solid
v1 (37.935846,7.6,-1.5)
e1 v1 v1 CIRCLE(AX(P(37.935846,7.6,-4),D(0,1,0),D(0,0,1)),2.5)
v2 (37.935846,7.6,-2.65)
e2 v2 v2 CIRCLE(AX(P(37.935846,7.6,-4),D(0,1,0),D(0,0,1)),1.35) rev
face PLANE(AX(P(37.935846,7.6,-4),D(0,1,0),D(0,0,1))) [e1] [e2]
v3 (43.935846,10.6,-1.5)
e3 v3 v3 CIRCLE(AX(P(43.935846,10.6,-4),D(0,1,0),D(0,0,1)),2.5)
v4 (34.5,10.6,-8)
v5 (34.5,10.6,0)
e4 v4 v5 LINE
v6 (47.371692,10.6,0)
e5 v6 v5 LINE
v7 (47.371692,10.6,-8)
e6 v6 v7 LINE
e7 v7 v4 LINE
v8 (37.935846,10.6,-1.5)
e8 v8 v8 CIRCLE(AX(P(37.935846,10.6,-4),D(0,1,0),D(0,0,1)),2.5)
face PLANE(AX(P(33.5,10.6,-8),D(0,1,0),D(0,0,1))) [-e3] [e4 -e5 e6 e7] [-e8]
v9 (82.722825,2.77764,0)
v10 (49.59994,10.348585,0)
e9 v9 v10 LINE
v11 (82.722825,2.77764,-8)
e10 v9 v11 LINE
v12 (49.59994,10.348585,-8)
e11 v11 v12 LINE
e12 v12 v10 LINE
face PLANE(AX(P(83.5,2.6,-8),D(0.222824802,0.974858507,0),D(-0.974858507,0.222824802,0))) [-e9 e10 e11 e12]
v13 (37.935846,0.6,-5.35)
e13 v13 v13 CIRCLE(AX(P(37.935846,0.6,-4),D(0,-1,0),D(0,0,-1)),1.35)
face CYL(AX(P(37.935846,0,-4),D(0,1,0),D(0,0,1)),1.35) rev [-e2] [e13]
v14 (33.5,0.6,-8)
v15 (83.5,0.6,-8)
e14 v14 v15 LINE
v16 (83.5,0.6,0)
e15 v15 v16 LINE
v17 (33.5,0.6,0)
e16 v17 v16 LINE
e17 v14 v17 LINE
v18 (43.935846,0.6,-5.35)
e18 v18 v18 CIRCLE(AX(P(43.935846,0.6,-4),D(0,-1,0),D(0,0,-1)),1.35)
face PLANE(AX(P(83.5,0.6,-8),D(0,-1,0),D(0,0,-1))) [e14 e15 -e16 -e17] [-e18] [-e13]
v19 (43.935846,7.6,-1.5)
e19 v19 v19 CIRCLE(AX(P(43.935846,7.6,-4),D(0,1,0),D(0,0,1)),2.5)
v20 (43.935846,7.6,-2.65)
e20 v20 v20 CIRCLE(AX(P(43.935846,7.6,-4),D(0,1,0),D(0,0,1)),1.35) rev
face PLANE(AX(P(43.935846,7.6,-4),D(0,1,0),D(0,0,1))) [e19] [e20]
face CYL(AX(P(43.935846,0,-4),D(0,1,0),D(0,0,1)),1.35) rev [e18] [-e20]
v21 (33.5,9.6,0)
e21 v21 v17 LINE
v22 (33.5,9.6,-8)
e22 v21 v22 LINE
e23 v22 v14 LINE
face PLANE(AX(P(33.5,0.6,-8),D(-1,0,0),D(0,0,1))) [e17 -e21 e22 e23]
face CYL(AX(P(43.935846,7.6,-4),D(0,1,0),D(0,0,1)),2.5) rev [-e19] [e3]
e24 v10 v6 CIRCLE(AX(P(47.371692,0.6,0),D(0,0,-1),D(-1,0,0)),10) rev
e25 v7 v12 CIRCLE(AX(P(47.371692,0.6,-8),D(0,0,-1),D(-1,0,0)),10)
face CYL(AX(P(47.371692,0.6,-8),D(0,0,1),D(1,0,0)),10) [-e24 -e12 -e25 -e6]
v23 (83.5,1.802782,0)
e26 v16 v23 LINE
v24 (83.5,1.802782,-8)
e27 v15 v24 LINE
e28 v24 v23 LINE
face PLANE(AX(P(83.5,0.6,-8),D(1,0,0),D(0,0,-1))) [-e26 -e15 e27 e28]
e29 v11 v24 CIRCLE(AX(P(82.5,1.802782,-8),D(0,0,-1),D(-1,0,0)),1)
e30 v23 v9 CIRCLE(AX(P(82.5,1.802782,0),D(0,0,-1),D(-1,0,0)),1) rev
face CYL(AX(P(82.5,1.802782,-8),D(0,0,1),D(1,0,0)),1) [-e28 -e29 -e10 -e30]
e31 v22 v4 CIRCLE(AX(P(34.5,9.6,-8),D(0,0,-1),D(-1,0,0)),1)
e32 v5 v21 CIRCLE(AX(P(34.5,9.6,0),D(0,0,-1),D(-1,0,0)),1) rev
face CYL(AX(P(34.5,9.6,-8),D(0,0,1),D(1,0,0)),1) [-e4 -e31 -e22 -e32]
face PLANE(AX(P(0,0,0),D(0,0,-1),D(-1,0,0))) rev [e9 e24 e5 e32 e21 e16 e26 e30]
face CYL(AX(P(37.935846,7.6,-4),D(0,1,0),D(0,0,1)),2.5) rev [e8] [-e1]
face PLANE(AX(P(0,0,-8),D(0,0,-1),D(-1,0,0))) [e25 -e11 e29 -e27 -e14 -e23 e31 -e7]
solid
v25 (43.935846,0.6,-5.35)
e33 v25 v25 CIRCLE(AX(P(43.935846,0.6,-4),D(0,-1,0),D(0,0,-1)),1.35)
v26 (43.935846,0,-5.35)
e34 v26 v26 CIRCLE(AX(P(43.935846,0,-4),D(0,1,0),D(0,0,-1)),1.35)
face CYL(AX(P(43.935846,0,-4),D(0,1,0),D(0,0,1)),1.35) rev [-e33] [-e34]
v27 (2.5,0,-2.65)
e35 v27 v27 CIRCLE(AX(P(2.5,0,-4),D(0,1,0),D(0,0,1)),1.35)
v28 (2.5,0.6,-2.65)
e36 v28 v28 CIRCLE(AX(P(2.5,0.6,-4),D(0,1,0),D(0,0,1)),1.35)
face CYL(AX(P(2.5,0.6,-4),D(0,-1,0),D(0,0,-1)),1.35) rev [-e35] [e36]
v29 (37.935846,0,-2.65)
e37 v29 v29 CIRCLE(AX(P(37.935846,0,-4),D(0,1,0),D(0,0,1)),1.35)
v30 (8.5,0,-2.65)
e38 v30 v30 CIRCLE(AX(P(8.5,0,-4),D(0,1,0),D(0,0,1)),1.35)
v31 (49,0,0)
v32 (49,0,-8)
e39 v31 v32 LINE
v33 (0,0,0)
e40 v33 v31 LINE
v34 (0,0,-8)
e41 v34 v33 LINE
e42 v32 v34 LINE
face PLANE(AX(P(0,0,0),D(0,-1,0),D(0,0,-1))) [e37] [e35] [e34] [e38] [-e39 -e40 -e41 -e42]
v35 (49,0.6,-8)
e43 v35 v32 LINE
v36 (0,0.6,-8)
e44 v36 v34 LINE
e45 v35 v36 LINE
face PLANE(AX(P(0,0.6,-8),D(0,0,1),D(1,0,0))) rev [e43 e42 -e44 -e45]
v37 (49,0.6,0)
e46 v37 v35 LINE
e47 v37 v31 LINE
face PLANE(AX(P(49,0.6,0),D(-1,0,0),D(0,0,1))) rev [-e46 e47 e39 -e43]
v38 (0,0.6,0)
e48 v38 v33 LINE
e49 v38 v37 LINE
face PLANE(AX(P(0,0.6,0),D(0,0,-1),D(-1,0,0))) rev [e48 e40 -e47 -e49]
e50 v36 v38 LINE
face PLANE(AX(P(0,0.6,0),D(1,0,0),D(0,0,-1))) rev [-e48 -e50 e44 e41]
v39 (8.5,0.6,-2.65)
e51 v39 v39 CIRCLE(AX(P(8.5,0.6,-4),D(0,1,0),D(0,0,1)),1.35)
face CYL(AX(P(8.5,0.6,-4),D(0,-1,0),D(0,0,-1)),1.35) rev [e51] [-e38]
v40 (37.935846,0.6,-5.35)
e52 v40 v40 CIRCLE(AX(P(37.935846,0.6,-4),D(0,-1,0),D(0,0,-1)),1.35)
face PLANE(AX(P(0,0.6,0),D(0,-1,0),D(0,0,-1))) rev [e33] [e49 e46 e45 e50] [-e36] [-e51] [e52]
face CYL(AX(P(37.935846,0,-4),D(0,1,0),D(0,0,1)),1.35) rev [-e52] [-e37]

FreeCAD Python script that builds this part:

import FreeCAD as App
import Part
import Sketcher
from FreeCAD import Vector


def edges_at(feature, points):
    """Names of the edges that pass closest to the given points."""
    edges = feature.Shape.Edges
    near = lambda p: min(range(len(edges)), key=lambda i: edges[i].distToShape(Part.Vertex(*p))[0])
    return sorted({f"Edge{near(p) + 1}" for p in points})

doc = App.newDocument("Part")
params = doc.addObject("Spreadsheet::Sheet", "Params")
for row, (alias, value) in enumerate([
    ("sketch1_diameter", "2.7 mm"),
    ("sketch1_width", "49 mm"),
    ("sketch1_height", "8 mm"),
    ("pad1_length", "0.6 mm"),
    ("sketch2_width", "50 mm"),
    ("sketch2_width2", "15 mm"),
    ("sketch2_height", "10 mm"),
    ("sketch2_height2", "2 mm"),
    ("pad2_length", "8 mm"),
    ("fillet_radius", "1 mm"),
    ("fillet2_radius", "10 mm"),
    ("fillet3_radius", "1 mm"),
    ("sketch3_diameter", "2.7 mm"),
    ("pad3_length", "85.549453 mm"),
    ("sketch4_diameter", "5 mm"),
    ("pocket1_length", "3 mm"),
], start=1):
    params.set(f"A{row}", alias)
    params.set(f"B{row}", "=" + value)
    params.setAlias(f"B{row}", alias)

body = doc.addObject("PartDesign::Body", "Body")

sketch1 = doc.addObject("Sketcher::SketchObject", "Sketch")
body.addObject(sketch1)
sketch1.AttachmentSupport = (doc.XZ_Plane, [""])
sketch1.MapMode = "FlatFace"
sketch1.addGeometry([
    Part.LineSegment(Vector(0, -8, 0), Vector(0, 0, 0)),
    Part.LineSegment(Vector(0, 0, 0), Vector(49, 0, 0)),
    Part.LineSegment(Vector(49, 0, 0), Vector(49, -8, 0)),
    Part.LineSegment(Vector(49, -8, 0), Vector(0, -8, 0)),
    Part.Circle(Vector(2.5, -4, 0), Vector(0, 0, 1), 1.35),
    Part.Circle(Vector(8.5, -4, 0), Vector(0, 0, 1), 1.35),
], False)
sketch1.addConstraint([
    Sketcher.Constraint("Coincident", 0, 2, 1, 1),
    Sketcher.Constraint("Coincident", 1, 2, 2, 1),
    Sketcher.Constraint("Coincident", 2, 2, 3, 1),
    Sketcher.Constraint("Coincident", 3, 2, 0, 1),
    Sketcher.Constraint("Vertical", 0),
    Sketcher.Constraint("Horizontal", 1),
    Sketcher.Constraint("Vertical", 2),
    Sketcher.Constraint("Horizontal", 3),
    Sketcher.Constraint("Coincident", 0, 2, -1, 1),
    Sketcher.Constraint("Equal", 4, 5),
    Sketcher.Constraint("Horizontal", 4, 3, 5, 3),
    Sketcher.Constraint("Diameter", 4, 2.7),
    Sketcher.Constraint("DistanceX", 1, 1, 1, 2, 49.0),
    Sketcher.Constraint("DistanceY", 0, 1, 0, 2, 8.0),
    Sketcher.Constraint("DistanceY", 4, 3, -1, 1, 4.0),
    Sketcher.Constraint("DistanceX", 4, 3, 5, 3, 6.0),
    Sketcher.Constraint("DistanceX", -1, 1, 4, 3, 2.5),
])
sketch1.setExpression("Constraints[11]", "Params.sketch1_diameter")
sketch1.setExpression("Constraints[12]", "Params.sketch1_width")
sketch1.setExpression("Constraints[13]", "Params.sketch1_height")
pad1 = doc.addObject("PartDesign::Pad", "Pad")
body.addObject(pad1)
pad1.Profile = sketch1
pad1.setExpression("Length", "Params.pad1_length")
pad1.Reversed = True
body2 = doc.addObject("PartDesign::Body", "Body001")

sketch2 = doc.addObject("Sketcher::SketchObject", "Sketch001")
body2.addObject(sketch2)
sketch2.AttachmentSupport = (doc.getObject("XY_Plane001"), [""])
sketch2.MapMode = "FlatFace"
sketch2.addGeometry([
    Part.LineSegment(Vector(33.5, 10.6, 0), Vector(33.5, 0.6, 0)),
    Part.LineSegment(Vector(33.5, 0.6, 0), Vector(83.5, 0.6, 0)),
    Part.LineSegment(Vector(83.5, 0.6, 0), Vector(83.5, 2.6, 0)),
    Part.LineSegment(Vector(83.5, 2.6, 0), Vector(48.5, 10.6, 0)),
    Part.LineSegment(Vector(48.5, 10.6, 0), Vector(33.5, 10.6, 0)),
], False)
sketch2.addConstraint([
    Sketcher.Constraint("Coincident", 0, 2, 1, 1),
    Sketcher.Constraint("Coincident", 1, 2, 2, 1),
    Sketcher.Constraint("Coincident", 2, 2, 3, 1),
    Sketcher.Constraint("Coincident", 3, 2, 4, 1),
    Sketcher.Constraint("Coincident", 4, 2, 0, 1),
    Sketcher.Constraint("Vertical", 0),
    Sketcher.Constraint("Horizontal", 1),
    Sketcher.Constraint("Vertical", 2),
    Sketcher.Constraint("Horizontal", 4),
    Sketcher.Constraint("DistanceX", 1, 1, 1, 2, 50.0),
    Sketcher.Constraint("DistanceX", 4, 2, 4, 1, 15.0),
    Sketcher.Constraint("DistanceY", 0, 2, 0, 1, 10.0),
    Sketcher.Constraint("DistanceY", 2, 1, 2, 2, 2.0),
    Sketcher.Constraint("DistanceX", -1, 1, 0, 2, 33.5),
    Sketcher.Constraint("DistanceY", -1, 1, 0, 2, 0.6),
])
sketch2.setExpression("Constraints[9]", "Params.sketch2_width")
sketch2.setExpression("Constraints[10]", "Params.sketch2_width2")
sketch2.setExpression("Constraints[11]", "Params.sketch2_height")
sketch2.setExpression("Constraints[12]", "Params.sketch2_height2")
pad2 = doc.addObject("PartDesign::Pad", "Pad001")
body2.addObject(pad2)
pad2.Profile = sketch2
pad2.setExpression("Length", "Params.pad2_length")
pad2.Reversed = True
doc.recompute()

fillet = doc.addObject("PartDesign::Fillet", "Fillet")
body2.addObject(fillet)
fillet.Base = (pad2, edges_at(pad2, [(83.5, 2.6, -4)]))
fillet.setExpression("Radius", "Params.fillet_radius")
doc.recompute()

fillet2 = doc.addObject("PartDesign::Fillet", "Fillet001")
body2.addObject(fillet2)
fillet2.Base = (fillet, edges_at(fillet, [(48.5, 10.6, -4)]))
fillet2.setExpression("Radius", "Params.fillet2_radius")
doc.recompute()

fillet3 = doc.addObject("PartDesign::Fillet", "Fillet002")
body2.addObject(fillet3)
fillet3.Base = (fillet2, edges_at(fillet2, [(33.5, 10.6, -4)]))
fillet3.setExpression("Radius", "Params.fillet3_radius")
body3 = doc.addObject("PartDesign::Body", "Body002")
body3.AllowCompound = True

sketch3 = doc.addObject("Sketcher::SketchObject", "Sketch002")
body3.addObject(sketch3)
sketch3.AttachmentSupport = (doc.getObject("XZ_Plane002"), [""])
sketch3.MapMode = "FlatFace"
sketch3.AttachmentOffset = App.Placement(Vector(0, 0, -10.6), App.Rotation())
sketch3.addGeometry([
    Part.Circle(Vector(37.935846, -4, 0), Vector(0, 0, 1), 1.35),
    Part.Circle(Vector(43.935846, -4, 0), Vector(0, 0, 1), 1.35),
], False)
sketch3.addConstraint([
    Sketcher.Constraint("Equal", 0, 1),
    Sketcher.Constraint("Horizontal", 0, 3, 1, 3),
    Sketcher.Constraint("Diameter", 0, 2.7),
    Sketcher.Constraint("DistanceY", 0, 3, -1, 1, 4.0),
    Sketcher.Constraint("DistanceX", 0, 3, 1, 3, 6.0),
    Sketcher.Constraint("DistanceX", -1, 1, 0, 3, 37.935846),
])
sketch3.setExpression("Constraints[2]", "Params.sketch3_diameter")
pad3 = doc.addObject("PartDesign::Pad", "Pad002")
body3.addObject(pad3)
pad3.Profile = sketch3
pad3.setExpression("Length", "Params.pad3_length")
doc.recompute()

body4 = doc.addObject("PartDesign::Body", "Body003")
body4.BaseFeature = body3
boolean = doc.addObject("PartDesign::Boolean", "Boolean")
body.addObject(boolean)
boolean.Type = "Cut"
boolean.addObjects([body4])
doc.recompute()

boolean2 = doc.addObject("PartDesign::Boolean", "Boolean001")
body2.addObject(boolean2)
boolean2.Type = "Cut"
boolean2.addObjects([body3])

sketch4 = doc.addObject("Sketcher::SketchObject", "Sketch003")
body2.addObject(sketch4)
sketch4.AttachmentSupport = (doc.getObject("XZ_Plane001"), [""])
sketch4.MapMode = "FlatFace"
sketch4.AttachmentOffset = App.Placement(Vector(0, 0, -10.6), App.Rotation())
sketch4.addGeometry([
    Part.Circle(Vector(37.935846, -4, 0), Vector(0, 0, 1), 2.5),
    Part.Circle(Vector(43.935846, -4, 0), Vector(0, 0, 1), 2.5),
], False)
sketch4.addConstraint([
    Sketcher.Constraint("Equal", 0, 1),
    Sketcher.Constraint("Horizontal", 0, 3, 1, 3),
    Sketcher.Constraint("Diameter", 0, 5.0),
    Sketcher.Constraint("DistanceY", 0, 3, -1, 1, 4.0),
    Sketcher.Constraint("DistanceX", 0, 3, 1, 3, 6.0),
    Sketcher.Constraint("DistanceX", -1, 1, 0, 3, 37.935846),
])
sketch4.setExpression("Constraints[2]", "Params.sketch4_diameter")
pocket1 = doc.addObject("PartDesign::Pocket", "Pocket")
body2.addObject(pocket1)
pocket1.Profile = sketch4
pocket1.setExpression("Length", "Params.pocket1_length")
pocket1.Reversed = True

doc.recompute()
